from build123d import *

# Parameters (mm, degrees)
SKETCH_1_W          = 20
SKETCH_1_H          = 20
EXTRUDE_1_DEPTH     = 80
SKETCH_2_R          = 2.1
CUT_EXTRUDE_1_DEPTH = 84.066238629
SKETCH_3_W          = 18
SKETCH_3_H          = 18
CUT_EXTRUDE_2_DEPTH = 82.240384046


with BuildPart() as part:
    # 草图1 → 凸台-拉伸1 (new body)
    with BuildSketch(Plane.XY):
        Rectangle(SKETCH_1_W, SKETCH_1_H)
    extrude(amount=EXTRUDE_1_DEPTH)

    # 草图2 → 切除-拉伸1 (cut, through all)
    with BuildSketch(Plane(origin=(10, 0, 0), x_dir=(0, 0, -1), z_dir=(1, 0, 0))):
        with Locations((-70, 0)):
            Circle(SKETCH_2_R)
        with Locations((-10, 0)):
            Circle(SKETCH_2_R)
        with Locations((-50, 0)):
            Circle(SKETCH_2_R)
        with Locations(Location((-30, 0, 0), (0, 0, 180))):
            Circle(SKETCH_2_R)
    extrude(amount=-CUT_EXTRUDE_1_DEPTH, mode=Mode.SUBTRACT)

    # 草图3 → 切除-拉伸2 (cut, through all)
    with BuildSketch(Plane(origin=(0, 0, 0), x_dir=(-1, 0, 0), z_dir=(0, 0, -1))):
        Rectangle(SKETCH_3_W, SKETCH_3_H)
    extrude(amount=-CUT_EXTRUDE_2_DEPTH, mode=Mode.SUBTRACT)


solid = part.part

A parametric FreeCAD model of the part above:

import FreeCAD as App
import Part
import Sketcher
from FreeCAD import Vector

doc = App.newDocument("Part")
body = doc.addObject("PartDesign::Body", "Body")

# Sketch on XY plane
sketch1 = body.newObject("Sketcher::SketchObject", "Sketch")
sketch1.AttachmentSupport = (doc.getObject("XY_Plane"), [""])
sketch1.MapMode = "FlatFace"
sketch1.addGeometry([
    Part.LineSegment(Vector(-10, 10, 0), Vector(-10, -10, 0)),
    Part.LineSegment(Vector(-10, -10, 0), Vector(10, -10, 0)),
    Part.LineSegment(Vector(10, -10, 0), Vector(10, 10, 0)),
    Part.LineSegment(Vector(10, 10, 0), Vector(-10, 10, 0)),
], False)
sketch1.addConstraint([
    Sketcher.Constraint("Coincident", 0, 2, 1, 1),
    Sketcher.Constraint("Coincident", 1, 2, 2, 1),
    Sketcher.Constraint("Coincident", 2, 2, 3, 1),
    Sketcher.Constraint("Coincident", 3, 2, 0, 1),
    Sketcher.Constraint("Vertical", 0),
    Sketcher.Constraint("Horizontal", 1),
    Sketcher.Constraint("Vertical", 2),
    Sketcher.Constraint("Horizontal", 3),
    Sketcher.Constraint("Symmetric", 0, 2, 2, 2, -1, 1),
    Sketcher.Constraint("Equal", 3, 0),
    Sketcher.Constraint("DistanceX", 1, 1, 1, 2, 20.0),
])
pad1 = body.newObject("PartDesign::Pad", "Pad")
pad1.Profile = sketch1
pad1.Length = 80

# Sketch on YZ plane
sketch2 = body.newObject("Sketcher::SketchObject", "Sketch001")
sketch2.AttachmentSupport = (doc.getObject("YZ_Plane"), [""])
sketch2.MapMode = "FlatFace"
sketch2.AttachmentOffset = App.Placement(Vector(0, 0, 10), App.Rotation())
sketch2.addGeometry([
    Part.Circle(Vector(0, 70, 0), Vector(0, 0, 1), 2.1),
    Part.Circle(Vector(0, 10, 0), Vector(0, 0, 1), 2.1),
    Part.Circle(Vector(0, 50, 0), Vector(0, 0, 1), 2.1),
    Part.Circle(Vector(0, 30, 0), Vector(0, 0, 1), 2.1),
], False)
sketch2.addConstraint([
    Sketcher.Constraint("Equal", 0, 1),
    Sketcher.Constraint("Equal", 1, 2),
    Sketcher.Constraint("Equal", 2, 3),
    Sketcher.Constraint("PointOnObject", 0, 3, -2),
    Sketcher.Constraint("PointOnObject", 1, 3, -2),
    Sketcher.Constraint("PointOnObject", 2, 3, -2),
    Sketcher.Constraint("PointOnObject", 3, 3, -2),
    Sketcher.Constraint("Diameter", 0, 4.2),
    Sketcher.Constraint("DistanceY", -1, 1, 0, 3, 70.0),
    Sketcher.Constraint("DistanceY", -1, 1, 1, 3, 10.0),
    Sketcher.Constraint("DistanceY", -1, 1, 2, 3, 50.0),
    Sketcher.Constraint("DistanceY", -1, 1, 3, 3, 30.0),
])
pocket1 = body.newObject("PartDesign::Pocket", "Pocket")
pocket1.Profile = sketch2
pocket1.Type = "ThroughAll"

# Sketch on XY plane
sketch3 = body.newObject("Sketcher::SketchObject", "Sketch002")
sketch3.AttachmentSupport = (doc.getObject("XY_Plane"), [""])
sketch3.MapMode = "FlatFace"
sketch3.addGeometry([
    Part.LineSegment(Vector(9, 9, 0), Vector(9, -9, 0)),
    Part.LineSegment(Vector(9, -9, 0), Vector(-9, -9, 0)),
    Part.LineSegment(Vector(-9, -9, 0), Vector(-9, 9, 0)),
    Part.LineSegment(Vector(-9, 9, 0), Vector(9, 9, 0)),
], False)
sketch3.addConstraint([
    Sketcher.Constraint("Coincident", 0, 2, 1, 1),
    Sketcher.Constraint("Coincident", 1, 2, 2, 1),
    Sketcher.Constraint("Coincident", 2, 2, 3, 1),
    Sketcher.Constraint("Coincident", 3, 2, 0, 1),
    Sketcher.Constraint("Vertical", 0),
    Sketcher.Constraint("Horizontal", 1),
    Sketcher.Constraint("Vertical", 2),
    Sketcher.Constraint("Horizontal", 3),
    Sketcher.Constraint("Symmetric", 0, 2, 2, 2, -1, 1),
    Sketcher.Constraint("Equal", 3, 0),
    Sketcher.Constraint("DistanceX", 1, 2, 1, 1, 18.0),
])
pocket2 = body.newObject("PartDesign::Pocket", "Pocket001")
pocket2.Profile = sketch3
pocket2.Type = "ThroughAll"
pocket2.Reversed = True

doc.recompute()
